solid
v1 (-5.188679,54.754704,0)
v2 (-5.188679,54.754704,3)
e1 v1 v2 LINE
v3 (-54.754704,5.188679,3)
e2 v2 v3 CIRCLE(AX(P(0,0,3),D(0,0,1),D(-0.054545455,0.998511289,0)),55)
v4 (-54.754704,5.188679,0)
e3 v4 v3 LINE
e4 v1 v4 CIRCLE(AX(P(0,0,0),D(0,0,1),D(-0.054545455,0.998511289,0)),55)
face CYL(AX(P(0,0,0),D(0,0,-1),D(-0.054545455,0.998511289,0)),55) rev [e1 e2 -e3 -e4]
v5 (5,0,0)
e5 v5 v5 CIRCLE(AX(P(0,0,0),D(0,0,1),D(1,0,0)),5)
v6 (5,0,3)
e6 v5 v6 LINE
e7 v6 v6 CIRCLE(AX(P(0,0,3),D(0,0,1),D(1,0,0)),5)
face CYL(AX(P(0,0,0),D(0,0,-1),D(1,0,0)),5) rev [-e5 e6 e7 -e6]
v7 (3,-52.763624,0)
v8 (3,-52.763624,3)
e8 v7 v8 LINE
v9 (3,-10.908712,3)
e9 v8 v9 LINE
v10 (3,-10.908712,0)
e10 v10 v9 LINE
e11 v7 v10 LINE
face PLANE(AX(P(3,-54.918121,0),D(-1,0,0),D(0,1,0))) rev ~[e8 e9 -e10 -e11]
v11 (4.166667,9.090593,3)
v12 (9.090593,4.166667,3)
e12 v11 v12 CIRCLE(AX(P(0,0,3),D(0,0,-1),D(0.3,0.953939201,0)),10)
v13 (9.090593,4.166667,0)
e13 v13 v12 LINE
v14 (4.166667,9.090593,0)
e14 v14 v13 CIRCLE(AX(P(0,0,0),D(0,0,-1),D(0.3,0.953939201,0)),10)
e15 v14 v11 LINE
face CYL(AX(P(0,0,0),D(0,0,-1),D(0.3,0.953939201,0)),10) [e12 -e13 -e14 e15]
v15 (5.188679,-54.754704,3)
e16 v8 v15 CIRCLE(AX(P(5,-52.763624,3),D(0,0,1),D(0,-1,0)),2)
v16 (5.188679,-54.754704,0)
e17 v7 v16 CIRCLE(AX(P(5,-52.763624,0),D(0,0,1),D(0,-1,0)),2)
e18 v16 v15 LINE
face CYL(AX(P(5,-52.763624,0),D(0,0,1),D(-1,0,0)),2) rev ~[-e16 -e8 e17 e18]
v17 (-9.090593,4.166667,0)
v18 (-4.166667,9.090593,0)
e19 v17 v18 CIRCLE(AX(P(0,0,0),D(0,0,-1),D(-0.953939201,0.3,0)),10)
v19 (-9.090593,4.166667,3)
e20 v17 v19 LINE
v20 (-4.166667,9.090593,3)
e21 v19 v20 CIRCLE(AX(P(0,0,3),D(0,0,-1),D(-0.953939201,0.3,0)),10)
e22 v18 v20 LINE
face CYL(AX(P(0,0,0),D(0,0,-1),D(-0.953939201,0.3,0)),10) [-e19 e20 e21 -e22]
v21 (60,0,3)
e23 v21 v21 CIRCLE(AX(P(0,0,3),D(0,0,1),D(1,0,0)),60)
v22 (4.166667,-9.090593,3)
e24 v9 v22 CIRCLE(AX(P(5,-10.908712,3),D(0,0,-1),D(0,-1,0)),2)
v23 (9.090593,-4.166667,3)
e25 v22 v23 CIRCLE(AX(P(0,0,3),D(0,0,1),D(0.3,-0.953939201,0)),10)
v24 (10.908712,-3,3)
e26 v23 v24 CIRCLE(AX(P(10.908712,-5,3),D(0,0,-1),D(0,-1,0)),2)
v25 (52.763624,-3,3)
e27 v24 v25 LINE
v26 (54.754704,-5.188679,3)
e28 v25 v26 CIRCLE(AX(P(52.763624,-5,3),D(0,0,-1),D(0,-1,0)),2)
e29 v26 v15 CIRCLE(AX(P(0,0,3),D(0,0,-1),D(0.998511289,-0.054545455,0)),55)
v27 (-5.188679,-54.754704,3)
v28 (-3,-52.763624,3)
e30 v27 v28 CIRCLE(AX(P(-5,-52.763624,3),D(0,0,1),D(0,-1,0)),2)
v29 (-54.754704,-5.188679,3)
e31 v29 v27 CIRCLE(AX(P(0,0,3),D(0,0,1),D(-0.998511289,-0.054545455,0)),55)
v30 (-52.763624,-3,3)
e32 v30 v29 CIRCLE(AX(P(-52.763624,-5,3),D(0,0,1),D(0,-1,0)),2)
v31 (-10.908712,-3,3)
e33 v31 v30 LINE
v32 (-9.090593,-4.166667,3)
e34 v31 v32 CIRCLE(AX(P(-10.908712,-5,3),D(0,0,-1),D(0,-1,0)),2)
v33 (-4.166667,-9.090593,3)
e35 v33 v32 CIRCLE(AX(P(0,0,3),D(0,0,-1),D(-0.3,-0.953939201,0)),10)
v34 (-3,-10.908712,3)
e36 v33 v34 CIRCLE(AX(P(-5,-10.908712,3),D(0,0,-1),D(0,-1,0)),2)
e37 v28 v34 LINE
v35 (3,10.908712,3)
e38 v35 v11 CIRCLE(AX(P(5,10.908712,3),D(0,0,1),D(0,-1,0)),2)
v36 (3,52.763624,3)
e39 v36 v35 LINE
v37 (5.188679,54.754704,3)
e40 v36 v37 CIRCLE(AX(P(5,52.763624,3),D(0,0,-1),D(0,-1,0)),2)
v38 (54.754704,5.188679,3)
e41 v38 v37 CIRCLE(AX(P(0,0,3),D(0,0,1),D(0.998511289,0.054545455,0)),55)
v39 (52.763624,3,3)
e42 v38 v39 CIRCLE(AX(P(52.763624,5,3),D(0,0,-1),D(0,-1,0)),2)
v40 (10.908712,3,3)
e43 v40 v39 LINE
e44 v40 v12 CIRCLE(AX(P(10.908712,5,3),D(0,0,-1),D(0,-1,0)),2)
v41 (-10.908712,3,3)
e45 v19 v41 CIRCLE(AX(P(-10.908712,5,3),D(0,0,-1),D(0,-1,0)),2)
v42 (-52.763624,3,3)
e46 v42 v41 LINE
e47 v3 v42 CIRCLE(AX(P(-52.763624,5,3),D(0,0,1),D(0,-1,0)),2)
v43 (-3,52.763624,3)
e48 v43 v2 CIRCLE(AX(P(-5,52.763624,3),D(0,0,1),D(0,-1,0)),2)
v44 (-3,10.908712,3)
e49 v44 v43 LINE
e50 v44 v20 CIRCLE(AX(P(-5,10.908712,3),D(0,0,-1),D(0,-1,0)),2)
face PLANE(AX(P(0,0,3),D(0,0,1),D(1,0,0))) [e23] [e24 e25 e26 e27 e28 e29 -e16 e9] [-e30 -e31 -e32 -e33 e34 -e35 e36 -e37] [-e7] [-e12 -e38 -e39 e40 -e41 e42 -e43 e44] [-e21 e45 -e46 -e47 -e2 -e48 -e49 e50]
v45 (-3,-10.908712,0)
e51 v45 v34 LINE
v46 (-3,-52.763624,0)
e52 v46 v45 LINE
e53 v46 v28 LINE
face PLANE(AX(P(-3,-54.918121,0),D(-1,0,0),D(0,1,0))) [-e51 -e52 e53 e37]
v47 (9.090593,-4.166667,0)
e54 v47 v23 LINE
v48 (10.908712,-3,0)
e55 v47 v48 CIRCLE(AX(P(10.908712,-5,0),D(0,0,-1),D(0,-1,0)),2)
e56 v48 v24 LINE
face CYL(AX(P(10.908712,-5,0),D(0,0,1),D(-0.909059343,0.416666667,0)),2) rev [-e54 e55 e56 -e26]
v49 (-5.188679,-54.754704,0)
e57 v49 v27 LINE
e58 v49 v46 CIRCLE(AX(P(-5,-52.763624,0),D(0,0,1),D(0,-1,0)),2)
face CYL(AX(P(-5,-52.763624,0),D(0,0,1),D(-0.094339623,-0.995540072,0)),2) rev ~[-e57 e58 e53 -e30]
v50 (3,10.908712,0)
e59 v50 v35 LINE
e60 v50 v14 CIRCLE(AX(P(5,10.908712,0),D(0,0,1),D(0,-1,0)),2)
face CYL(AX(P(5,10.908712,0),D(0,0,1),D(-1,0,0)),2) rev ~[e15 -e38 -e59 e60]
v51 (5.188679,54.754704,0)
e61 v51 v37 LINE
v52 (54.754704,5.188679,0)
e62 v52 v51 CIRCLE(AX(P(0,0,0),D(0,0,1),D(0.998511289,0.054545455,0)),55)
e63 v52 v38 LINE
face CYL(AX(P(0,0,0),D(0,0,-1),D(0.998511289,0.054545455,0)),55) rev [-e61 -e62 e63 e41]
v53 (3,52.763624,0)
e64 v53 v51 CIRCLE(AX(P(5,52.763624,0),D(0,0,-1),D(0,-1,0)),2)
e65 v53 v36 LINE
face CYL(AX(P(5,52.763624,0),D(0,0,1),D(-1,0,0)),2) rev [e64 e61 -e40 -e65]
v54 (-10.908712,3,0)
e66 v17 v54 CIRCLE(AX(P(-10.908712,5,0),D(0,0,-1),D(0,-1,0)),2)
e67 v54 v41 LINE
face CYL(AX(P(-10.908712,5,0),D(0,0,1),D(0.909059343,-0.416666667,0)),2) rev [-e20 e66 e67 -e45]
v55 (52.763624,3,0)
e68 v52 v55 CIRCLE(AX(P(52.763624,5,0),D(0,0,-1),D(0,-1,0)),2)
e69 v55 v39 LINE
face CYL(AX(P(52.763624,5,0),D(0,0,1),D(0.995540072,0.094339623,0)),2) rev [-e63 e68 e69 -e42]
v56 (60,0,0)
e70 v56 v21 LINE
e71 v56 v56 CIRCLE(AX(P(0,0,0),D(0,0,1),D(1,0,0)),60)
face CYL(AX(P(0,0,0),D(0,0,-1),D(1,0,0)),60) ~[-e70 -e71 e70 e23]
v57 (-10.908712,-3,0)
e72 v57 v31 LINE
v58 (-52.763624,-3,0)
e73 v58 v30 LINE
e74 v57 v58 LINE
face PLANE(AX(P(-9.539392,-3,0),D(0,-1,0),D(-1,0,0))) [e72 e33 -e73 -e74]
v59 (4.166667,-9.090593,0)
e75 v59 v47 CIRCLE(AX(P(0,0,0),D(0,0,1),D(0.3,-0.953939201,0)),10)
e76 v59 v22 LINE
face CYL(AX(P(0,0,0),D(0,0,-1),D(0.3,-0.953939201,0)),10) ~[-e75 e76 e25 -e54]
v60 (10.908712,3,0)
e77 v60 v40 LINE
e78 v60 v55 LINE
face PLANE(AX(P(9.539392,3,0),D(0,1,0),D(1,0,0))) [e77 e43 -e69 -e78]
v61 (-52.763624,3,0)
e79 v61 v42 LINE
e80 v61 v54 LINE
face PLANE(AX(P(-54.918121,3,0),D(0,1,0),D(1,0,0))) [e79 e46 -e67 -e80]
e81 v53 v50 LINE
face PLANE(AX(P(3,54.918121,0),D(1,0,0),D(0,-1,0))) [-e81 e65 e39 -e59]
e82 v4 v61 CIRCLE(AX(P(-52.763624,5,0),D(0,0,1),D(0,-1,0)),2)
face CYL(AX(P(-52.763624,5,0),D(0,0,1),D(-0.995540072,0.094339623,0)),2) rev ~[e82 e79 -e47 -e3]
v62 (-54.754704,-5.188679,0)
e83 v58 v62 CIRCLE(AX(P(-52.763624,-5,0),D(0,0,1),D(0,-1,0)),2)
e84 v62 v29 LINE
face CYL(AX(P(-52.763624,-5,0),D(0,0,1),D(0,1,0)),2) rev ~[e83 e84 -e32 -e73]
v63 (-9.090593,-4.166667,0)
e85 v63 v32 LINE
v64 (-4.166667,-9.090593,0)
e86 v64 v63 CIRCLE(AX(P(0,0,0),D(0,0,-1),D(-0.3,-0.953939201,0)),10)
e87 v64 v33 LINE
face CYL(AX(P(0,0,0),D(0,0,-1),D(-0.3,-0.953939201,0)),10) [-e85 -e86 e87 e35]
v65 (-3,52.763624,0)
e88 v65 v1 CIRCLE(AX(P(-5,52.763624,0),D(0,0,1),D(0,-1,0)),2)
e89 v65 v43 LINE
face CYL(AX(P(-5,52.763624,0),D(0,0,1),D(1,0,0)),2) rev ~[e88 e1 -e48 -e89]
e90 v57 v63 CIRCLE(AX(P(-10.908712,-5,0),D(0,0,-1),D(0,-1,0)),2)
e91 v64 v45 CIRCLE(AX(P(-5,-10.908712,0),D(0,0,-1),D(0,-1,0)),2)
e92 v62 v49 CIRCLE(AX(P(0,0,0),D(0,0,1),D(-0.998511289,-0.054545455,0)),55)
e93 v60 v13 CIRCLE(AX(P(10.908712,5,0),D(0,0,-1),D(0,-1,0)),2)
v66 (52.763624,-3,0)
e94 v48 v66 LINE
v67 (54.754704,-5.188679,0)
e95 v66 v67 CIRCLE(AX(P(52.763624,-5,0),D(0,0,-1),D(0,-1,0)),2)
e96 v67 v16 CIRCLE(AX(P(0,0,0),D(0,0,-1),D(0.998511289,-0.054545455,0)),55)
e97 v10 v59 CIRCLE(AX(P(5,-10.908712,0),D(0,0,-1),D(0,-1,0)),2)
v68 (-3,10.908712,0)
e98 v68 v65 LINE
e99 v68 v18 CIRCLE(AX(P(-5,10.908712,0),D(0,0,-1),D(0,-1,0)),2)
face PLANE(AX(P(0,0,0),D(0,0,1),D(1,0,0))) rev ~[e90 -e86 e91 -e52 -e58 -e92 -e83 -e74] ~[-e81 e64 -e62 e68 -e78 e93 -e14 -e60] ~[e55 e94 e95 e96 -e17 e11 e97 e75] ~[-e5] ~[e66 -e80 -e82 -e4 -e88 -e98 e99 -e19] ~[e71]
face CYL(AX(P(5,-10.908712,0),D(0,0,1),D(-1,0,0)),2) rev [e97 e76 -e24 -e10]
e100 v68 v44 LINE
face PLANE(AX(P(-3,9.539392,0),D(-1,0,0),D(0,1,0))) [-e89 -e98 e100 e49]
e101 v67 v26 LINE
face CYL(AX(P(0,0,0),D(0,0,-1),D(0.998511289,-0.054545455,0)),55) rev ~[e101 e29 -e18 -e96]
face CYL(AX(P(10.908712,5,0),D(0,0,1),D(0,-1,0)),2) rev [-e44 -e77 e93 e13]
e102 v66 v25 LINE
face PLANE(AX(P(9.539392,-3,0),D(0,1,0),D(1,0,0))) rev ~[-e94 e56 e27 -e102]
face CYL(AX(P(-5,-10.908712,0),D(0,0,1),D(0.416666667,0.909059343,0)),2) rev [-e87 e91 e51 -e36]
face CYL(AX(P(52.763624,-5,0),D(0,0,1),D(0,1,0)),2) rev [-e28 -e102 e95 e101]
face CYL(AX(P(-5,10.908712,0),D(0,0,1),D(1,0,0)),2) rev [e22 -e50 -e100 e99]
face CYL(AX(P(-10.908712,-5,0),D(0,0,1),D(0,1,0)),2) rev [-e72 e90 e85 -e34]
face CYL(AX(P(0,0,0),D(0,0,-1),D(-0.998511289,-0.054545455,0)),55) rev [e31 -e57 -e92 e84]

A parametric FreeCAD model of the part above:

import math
import FreeCAD as App
import Part
import Sketcher
from FreeCAD import Vector


def edges_at(feature, points):
    """Names of the edges that pass closest to the given points."""
    edges = feature.Shape.Edges
    near = lambda p: min(range(len(edges)), key=lambda i: edges[i].distToShape(Part.Vertex(*p))[0])
    return sorted({f"Edge{near(p) + 1}" for p in points})

doc = App.newDocument("Part")
body = doc.addObject("PartDesign::Body", "Body")

# Sketch on XY plane
sketch1 = body.newObject("Sketcher::SketchObject", "Sketch")
sketch1.AttachmentSupport = (doc.getObject("XY_Plane"), [""])
sketch1.MapMode = "FlatFace"
sketch1.addGeometry([
    Part.Circle(Vector(0, 0, 0), Vector(0, 0, 1), 60),  # 0
    Part.LineSegment(Vector(-55, -3, 0), Vector(-10, -3, 0)),  # 1
    Part.ArcOfCircle(Part.Circle(Vector(0, 0, 0), Vector(0, 0, 1), 10), math.radians(-163), math.radians(-107)),  # 2
    Part.LineSegment(Vector(-3, -10, 0), Vector(-3, -55, 0)),  # 3
    Part.ArcOfCircle(Part.Circle(Vector(0, 0, 0), Vector(0, 0, 1), 55), math.radians(-177), math.radians(-93)),  # 4
    Part.ArcOfCircle(Part.Circle(Vector(0, 0, 0), Vector(0, 0, 1), 10), math.radians(-73), math.radians(-17)),  # 5
    Part.LineSegment(Vector(10, -3, 0), Vector(55, -3, 0)),  # 6
    Part.ArcOfCircle(Part.Circle(Vector(0, 0, 0), Vector(0, 0, 1), 55), math.radians(-87), math.radians(-3)),  # 7
    Part.LineSegment(Vector(3, -55, 0), Vector(3, -10, 0)),  # 8
    Part.LineSegment(Vector(-3, 55, 0), Vector(-3, 10, 0)),  # 9
    Part.ArcOfCircle(Part.Circle(Vector(0, 0, 0), Vector(0, 0, 1), 10), math.radians(107), math.radians(163)),  # 10
    Part.LineSegment(Vector(-10, 3, 0), Vector(-55, 3, 0)),  # 11
    Part.ArcOfCircle(Part.Circle(Vector(0, 0, 0), Vector(0, 0, 1), 55), math.radians(93), math.radians(177)),  # 12
    Part.Circle(Vector(0, 0, 0), Vector(0, 0, 1), 5),  # 13
    Part.LineSegment(Vector(3, 10, 0), Vector(3, 55, 0)),  # 14
    Part.ArcOfCircle(Part.Circle(Vector(0, 0, 0), Vector(0, 0, 1), 55), math.radians(3), math.radians(87)),  # 15
    Part.LineSegment(Vector(55, 3, 0), Vector(10, 3, 0)),  # 16
    Part.ArcOfCircle(Part.Circle(Vector(0, 0, 0), Vector(0, 0, 1), 10), math.radians(17), math.radians(73)),  # 17
], False)
sketch1.addConstraint([
    Sketcher.Constraint("Coincident", 1, 2, 2, 1),
    Sketcher.Constraint("Coincident", 2, 2, 3, 1),
    Sketcher.Constraint("Coincident", 3, 2, 4, 2),
    Sketcher.Constraint("Coincident", 4, 1, 1, 1),
    Sketcher.Constraint("Coincident", 5, 2, 6, 1),
    Sketcher.Constraint("Coincident", 6, 2, 7, 2),
    Sketcher.Constraint("Coincident", 7, 1, 8, 1),
    Sketcher.Constraint("Coincident", 8, 2, 5, 1),
    Sketcher.Constraint("Coincident", 9, 2, 10, 1),
    Sketcher.Constraint("Coincident", 10, 2, 11, 1),
    Sketcher.Constraint("Coincident", 11, 2, 12, 2),
    Sketcher.Constraint("Coincident", 12, 1, 9, 1),
    Sketcher.Constraint("Coincident", 14, 2, 15, 2),
    Sketcher.Constraint("Coincident", 15, 1, 16, 1),
    Sketcher.Constraint("Coincident", 16, 2, 17, 1),
    Sketcher.Constraint("Coincident", 17, 2, 14, 1),
    Sketcher.Constraint("Horizontal", 1),
    Sketcher.Constraint("Vertical", 3),
    Sketcher.Constraint("Horizontal", 6),
    Sketcher.Constraint("Vertical", 8),
    Sketcher.Constraint("Vertical", 9),
    Sketcher.Constraint("Horizontal", 11),
    Sketcher.Constraint("Vertical", 14),
    Sketcher.Constraint("Horizontal", 16),
    Sketcher.Constraint("Coincident", 0, 3, -1, 1),
    Sketcher.Constraint("Coincident", 2, 3, -1, 1),
    Sketcher.Constraint("Coincident", 4, 3, -1, 1),
    Sketcher.Constraint("Coincident", 5, 3, -1, 1),
    Sketcher.Constraint("Coincident", 7, 3, -1, 1),
    Sketcher.Constraint("Coincident", 10, 3, -1, 1),
    Sketcher.Constraint("Coincident", 12, 3, -1, 1),
    Sketcher.Constraint("Coincident", 13, 3, -1, 1),
    Sketcher.Constraint("Coincident", 15, 3, -1, 1),
    Sketcher.Constraint("Coincident", 17, 3, -1, 1),
    Sketcher.Constraint("Equal", 2, 5),
    Sketcher.Constraint("Equal", 4, 7),
    Sketcher.Constraint("Equal", 5, 10),
    Sketcher.Constraint("Equal", 7, 12),
    Sketcher.Constraint("Equal", 12, 15),
    Sketcher.Constraint("Equal", 10, 17),
    Sketcher.Constraint("Horizontal", 4, 1, 5, 2),
    Sketcher.Constraint("Horizontal", 3, 2, 7, 1),
    Sketcher.Constraint("Horizontal", 12, 1, 14, 2),
    Sketcher.Constraint("Horizontal", 11, 2, 15, 1),
    Sketcher.Constraint("Vertical", 3, 2, 9, 2),
    Sketcher.Constraint("Vertical", 1, 2, 10, 2),
    Sketcher.Constraint("Equal", 16, 3),
    Sketcher.Constraint("Diameter", 0, 120.0),
    Sketcher.Constraint("Diameter", 13, 10.0),
    Sketcher.Constraint("Radius", 2, 10.0),
    Sketcher.Constraint("Radius", 4, 55.0),
    Sketcher.Constraint("DistanceY", 1, 2, -1, 1, 3.0),
])
pad1 = body.newObject("PartDesign::Pad", "Pad")
pad1.Profile = sketch1
pad1.Length = 3
doc.recompute()

fillet = body.newObject("PartDesign::Fillet", "Fillet")
fillet.Base = (pad1, edges_at(pad1, [(3, 54.918, 1.5)]))
fillet.Radius = 2
doc.recompute()

fillet2 = body.newObject("PartDesign::Fillet", "Fillet001")
fillet2.Base = (fillet, edges_at(fillet, [
    (54.918, 3, 1.5),
    (3, -54.918, 1.5),
    (54.918, -3, 1.5),
    (-54.918, -3, 1.5),
    (-3, -54.918, 1.5),
    (-3, 54.918, 1.5),
    (-54.918, 3, 1.5),
]))
fillet2.Radius = 2
doc.recompute()

fillet3 = body.newObject("PartDesign::Fillet", "Fillet002")
fillet3.Base = (fillet2, edges_at(fillet2, [
    (3, 9.539, 1.5),
    (9.539, 3, 1.5),
    (9.539, -3, 1.5),
    (3, -9.539, 1.5),
    (-3, -9.539, 1.5),
    (-9.539, -3, 1.5),
    (-9.539, 3, 1.5),
    (-3, 9.539, 1.5),
]))
fillet3.Radius = 2

doc.recompute()
